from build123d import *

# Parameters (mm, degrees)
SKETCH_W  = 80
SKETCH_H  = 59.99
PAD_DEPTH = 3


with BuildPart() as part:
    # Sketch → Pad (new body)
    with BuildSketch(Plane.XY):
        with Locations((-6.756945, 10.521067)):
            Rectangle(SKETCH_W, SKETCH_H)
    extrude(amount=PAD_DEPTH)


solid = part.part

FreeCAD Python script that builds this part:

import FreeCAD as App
import Part
import Sketcher
from FreeCAD import Vector
Q = App.Units.Quantity


def add_polygon(sketch, points):
    """Adds a closed chain of lines whose ends are joined by coincident constraints."""
    first, n = sketch.GeometryCount, len(points)
    for a, b in zip(points, points[1:] + points[:1]):
        sketch.addGeometry(Part.LineSegment(App.Vector(*a, 0), App.Vector(*b, 0)), False)
    for i in range(n):
        sketch.addConstraint(Sketcher.Constraint("Coincident", first + i, 2, first + (i + 1) % n, 1))

doc = App.newDocument("Part")
body = doc.addObject("PartDesign::Body", "Body")

# Sketch on XY plane
sketch1 = body.newObject("Sketcher::SketchObject", "Sketch")
sketch1.AttachmentSupport = (doc.getObject("XY_Plane"), [""])
sketch1.MapMode = "FlatFace"
add_polygon(sketch1, [(-47, 41), (-47, -19), (33, -19), (33, 41)])  # lines 0-3
sketch1.addConstraint(Sketcher.Constraint("Vertical", 0))
sketch1.addConstraint(Sketcher.Constraint("Horizontal", 1))
sketch1.addConstraint(Sketcher.Constraint("Vertical", 2))
sketch1.addConstraint(Sketcher.Constraint("Horizontal", 3))
sketch1.addConstraint(Sketcher.Constraint("DistanceX", 1, 1, 1, 2, Q("80 mm")))
sketch1.addConstraint(Sketcher.Constraint("DistanceY", 0, 2, 0, 1, Q("59.99 mm")))
sketch1.addConstraint(Sketcher.Constraint("DistanceX", 0, 2, -1, 1, Q("46.756945 mm")))
sketch1.addConstraint(Sketcher.Constraint("DistanceY", 0, 2, -1, 1, Q("19.473933 mm")))
pad1 = body.newObject("PartDesign::Pad", "Pad")
pad1.Profile = sketch1
pad1.Length = 3

doc.recompute()
